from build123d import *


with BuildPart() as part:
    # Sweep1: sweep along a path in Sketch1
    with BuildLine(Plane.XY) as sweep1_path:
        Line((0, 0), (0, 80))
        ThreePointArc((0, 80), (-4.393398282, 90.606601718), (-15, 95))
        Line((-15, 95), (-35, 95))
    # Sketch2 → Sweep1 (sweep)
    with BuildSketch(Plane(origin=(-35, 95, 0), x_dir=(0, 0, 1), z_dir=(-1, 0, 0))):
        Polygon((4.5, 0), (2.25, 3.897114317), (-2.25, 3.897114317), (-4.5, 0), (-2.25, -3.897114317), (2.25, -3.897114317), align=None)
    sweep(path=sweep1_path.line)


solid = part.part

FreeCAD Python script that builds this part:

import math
import FreeCAD as App
import Part
import Sketcher

V = App.Vector
Q = App.Units.Quantity


def add_polygon(sketch, points):
    """Adds a closed chain of lines whose ends are joined by coincident constraints."""
    first, n = sketch.GeometryCount, len(points)
    for a, b in zip(points, points[1:] + points[:1]):
        sketch.addGeometry(Part.LineSegment(App.Vector(*a, 0), App.Vector(*b, 0)), False)
    for i in range(n):
        sketch.addConstraint(Sketcher.Constraint("Coincident", first + i, 2, first + (i + 1) % n, 1))

doc = App.newDocument("Part")
body = doc.addObject("PartDesign::Body", "Body")

# Sketch on YZ plane
sketch1 = body.newObject("Sketcher::SketchObject", "Sketch")
sketch1.AttachmentSupport = (doc.getObject("YZ_Plane"), [""])
sketch1.MapMode = "FlatFace"
sketch1.AttachmentOffset = App.Placement(V(0, 0, -35), App.Rotation())
add_polygon(sketch1, [(95, 4.5), (98.897114, 2.25), (98.897114, -2.25), (95, -4.5), (91.102886, -2.25), (91.102886, 2.25)])  # lines 0-5
sketch1.addConstraint(Sketcher.Constraint("Vertical", 1))
sketch1.addConstraint(Sketcher.Constraint("Vertical", 4))
sketch1.addConstraint(Sketcher.Constraint("Symmetric", 2, 2, 5, 2, -1))
sketch1.addConstraint(Sketcher.Constraint("Parallel", 0, 3))
sketch1.addConstraint(Sketcher.Constraint("Parallel", 2, 5))
sketch1.addConstraint(Sketcher.Constraint("Horizontal", 1, 2, 3, 2))
sketch1.addConstraint(Sketcher.Constraint("Horizontal", 0, 2, 4, 2))
sketch1.addConstraint(Sketcher.Constraint("Angle", 0, Q("-30 deg")))
sketch1.addConstraint(Sketcher.Constraint("DistanceY", 1, 2, 1, 1, Q("4.5 mm")))
sketch1.addConstraint(Sketcher.Constraint("DistanceX", -1, 1, 2, 2, Q("95 mm")))
sketch1.addConstraint(Sketcher.Constraint("DistanceY", 2, 2, 5, 2, Q("9 mm")))

# Sketch on XY plane
sketch2 = body.newObject("Sketcher::SketchObject", "Sketch001")
sketch2.AttachmentSupport = (doc.getObject("XY_Plane"), [""])
sketch2.MapMode = "FlatFace"
sketch2.addGeometry(Part.LineSegment(V(0, 0, 0), V(0, 80, 0)), False)
sketch2.addGeometry(Part.ArcOfCircle(Part.Circle(V(-15, 80, 0), V(0, 0, 1), 15), math.radians(0), math.radians(90)), False)
sketch2.addGeometry(Part.LineSegment(V(-15, 95, 0), V(-35, 95, 0)), False)
sketch2.addConstraint(Sketcher.Constraint("Tangent", 0, 2, 1, 1))
sketch2.addConstraint(Sketcher.Constraint("Tangent", 1, 2, 2, 1))
sketch2.addConstraint(Sketcher.Constraint("Vertical", 0))
sketch2.addConstraint(Sketcher.Constraint("Horizontal", 2))
sketch2.addConstraint(Sketcher.Constraint("Coincident", 0, 1, -1, 1))
sketch2.addConstraint(Sketcher.Constraint("Radius", 1, Q("15 mm")))
sketch2.addConstraint(Sketcher.Constraint("DistanceX", 2, 2, 2, 1, Q("20 mm")))
sketch2.addConstraint(Sketcher.Constraint("DistanceY", 0, 1, 0, 2, Q("80 mm")))
doc.recompute()

additivepipe = body.newObject("PartDesign::AdditivePipe", "AdditivePipe")
additivepipe.Profile = sketch1
additivepipe.Spine = (sketch2, ["Edge1", "Edge2", "Edge3"])

doc.recompute()
